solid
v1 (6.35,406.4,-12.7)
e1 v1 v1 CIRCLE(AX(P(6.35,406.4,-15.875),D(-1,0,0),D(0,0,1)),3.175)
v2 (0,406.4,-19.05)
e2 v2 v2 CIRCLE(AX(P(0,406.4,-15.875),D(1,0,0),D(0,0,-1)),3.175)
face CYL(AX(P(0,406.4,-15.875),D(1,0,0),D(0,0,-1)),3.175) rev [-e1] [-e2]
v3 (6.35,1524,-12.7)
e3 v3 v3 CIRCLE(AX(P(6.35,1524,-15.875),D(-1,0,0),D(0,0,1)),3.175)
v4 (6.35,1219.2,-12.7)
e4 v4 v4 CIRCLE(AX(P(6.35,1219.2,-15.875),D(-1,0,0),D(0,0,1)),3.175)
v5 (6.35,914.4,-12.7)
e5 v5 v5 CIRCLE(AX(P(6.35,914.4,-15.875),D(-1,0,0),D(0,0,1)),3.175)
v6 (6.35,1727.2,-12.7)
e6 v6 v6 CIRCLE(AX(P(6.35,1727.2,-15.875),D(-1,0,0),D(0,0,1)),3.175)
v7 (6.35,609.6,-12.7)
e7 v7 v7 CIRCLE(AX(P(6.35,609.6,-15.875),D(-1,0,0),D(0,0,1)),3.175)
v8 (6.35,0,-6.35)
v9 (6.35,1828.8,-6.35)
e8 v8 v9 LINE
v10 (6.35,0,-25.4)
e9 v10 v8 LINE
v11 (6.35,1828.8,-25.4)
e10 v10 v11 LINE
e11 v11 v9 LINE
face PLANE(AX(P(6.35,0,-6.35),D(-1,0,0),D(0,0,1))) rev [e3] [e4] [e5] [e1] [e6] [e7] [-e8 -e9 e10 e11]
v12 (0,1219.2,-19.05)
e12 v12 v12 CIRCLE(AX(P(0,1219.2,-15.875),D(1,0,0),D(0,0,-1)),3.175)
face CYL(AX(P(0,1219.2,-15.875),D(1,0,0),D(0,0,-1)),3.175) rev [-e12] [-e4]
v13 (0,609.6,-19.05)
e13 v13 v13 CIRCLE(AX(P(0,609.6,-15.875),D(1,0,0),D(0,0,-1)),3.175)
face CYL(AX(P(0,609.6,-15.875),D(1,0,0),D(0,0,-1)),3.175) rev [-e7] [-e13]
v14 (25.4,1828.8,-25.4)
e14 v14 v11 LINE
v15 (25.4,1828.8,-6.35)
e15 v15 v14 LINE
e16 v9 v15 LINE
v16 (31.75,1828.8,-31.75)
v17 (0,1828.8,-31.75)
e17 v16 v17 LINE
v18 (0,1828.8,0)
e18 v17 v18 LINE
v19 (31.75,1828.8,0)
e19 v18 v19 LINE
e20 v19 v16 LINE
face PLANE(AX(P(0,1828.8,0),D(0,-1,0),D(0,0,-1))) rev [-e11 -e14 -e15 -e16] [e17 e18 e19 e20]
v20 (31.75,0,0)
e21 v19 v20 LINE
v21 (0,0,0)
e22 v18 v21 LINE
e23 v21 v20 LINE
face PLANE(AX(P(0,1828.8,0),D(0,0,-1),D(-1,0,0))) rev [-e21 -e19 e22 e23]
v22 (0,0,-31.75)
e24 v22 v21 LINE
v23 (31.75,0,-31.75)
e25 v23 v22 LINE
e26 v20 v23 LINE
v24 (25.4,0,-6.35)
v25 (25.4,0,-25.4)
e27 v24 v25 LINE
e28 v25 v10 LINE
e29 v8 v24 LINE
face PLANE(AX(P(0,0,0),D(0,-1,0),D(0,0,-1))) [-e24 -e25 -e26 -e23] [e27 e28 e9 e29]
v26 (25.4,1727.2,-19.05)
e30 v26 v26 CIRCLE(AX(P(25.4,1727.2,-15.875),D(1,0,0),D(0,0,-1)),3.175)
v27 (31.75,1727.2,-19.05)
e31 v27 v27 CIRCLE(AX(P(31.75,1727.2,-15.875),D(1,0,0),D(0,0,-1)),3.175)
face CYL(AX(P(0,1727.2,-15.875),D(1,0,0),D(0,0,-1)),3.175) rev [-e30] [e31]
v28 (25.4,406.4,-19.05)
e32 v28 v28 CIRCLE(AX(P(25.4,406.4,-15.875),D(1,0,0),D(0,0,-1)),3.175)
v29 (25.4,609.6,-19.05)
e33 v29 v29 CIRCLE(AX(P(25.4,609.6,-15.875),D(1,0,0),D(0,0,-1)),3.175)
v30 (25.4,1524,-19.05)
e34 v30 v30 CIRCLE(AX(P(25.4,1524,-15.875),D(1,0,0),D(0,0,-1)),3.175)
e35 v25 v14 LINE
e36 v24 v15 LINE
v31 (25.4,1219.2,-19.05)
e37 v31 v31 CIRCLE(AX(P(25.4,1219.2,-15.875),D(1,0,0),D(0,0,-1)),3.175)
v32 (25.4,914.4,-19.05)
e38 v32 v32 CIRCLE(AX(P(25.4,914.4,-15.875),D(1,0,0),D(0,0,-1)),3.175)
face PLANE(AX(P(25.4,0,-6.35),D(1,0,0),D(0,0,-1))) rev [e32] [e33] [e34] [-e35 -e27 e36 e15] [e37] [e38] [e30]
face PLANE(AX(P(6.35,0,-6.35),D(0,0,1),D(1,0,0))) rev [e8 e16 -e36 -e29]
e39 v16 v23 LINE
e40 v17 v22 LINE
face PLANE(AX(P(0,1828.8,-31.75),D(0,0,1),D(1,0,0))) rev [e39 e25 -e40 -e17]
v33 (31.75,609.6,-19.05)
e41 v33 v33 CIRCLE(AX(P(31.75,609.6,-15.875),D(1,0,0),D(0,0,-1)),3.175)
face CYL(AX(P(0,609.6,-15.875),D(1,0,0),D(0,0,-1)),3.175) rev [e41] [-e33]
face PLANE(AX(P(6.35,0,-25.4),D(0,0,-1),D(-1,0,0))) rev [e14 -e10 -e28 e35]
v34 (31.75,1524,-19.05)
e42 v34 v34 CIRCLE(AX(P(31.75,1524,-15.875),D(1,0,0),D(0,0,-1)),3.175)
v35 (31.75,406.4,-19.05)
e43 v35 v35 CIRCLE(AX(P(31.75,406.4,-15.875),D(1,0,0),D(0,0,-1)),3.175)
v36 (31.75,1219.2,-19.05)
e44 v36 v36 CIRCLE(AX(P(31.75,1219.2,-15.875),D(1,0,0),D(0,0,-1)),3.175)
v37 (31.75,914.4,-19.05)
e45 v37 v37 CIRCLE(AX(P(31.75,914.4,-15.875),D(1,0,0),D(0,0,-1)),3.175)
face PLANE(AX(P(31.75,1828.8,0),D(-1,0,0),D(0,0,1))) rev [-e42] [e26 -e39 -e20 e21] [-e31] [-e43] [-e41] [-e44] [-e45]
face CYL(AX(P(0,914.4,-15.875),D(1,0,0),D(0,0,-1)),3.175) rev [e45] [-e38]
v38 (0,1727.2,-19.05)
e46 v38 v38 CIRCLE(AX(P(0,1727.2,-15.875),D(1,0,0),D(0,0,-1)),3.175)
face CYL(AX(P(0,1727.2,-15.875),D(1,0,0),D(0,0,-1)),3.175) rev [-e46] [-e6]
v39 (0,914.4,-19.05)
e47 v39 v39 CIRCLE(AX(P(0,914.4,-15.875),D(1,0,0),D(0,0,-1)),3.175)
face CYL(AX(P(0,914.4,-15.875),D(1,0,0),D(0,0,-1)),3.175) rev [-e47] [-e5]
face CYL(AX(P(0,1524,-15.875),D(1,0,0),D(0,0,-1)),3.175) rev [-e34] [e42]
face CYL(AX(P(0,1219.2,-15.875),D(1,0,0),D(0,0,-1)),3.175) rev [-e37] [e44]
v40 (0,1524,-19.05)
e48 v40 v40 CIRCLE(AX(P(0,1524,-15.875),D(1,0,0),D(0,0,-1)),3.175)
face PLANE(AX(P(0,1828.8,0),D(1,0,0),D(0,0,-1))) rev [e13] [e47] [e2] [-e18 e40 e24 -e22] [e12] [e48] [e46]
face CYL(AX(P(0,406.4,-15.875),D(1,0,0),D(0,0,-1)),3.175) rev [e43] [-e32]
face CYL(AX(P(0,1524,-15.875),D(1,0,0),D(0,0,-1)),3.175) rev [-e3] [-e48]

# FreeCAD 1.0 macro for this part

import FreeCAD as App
import Part
import Sketcher
from FreeCAD import Vector
Q = App.Units.Quantity


def add_polygon(sketch, points):
    """Adds a closed chain of lines whose ends are joined by coincident constraints."""
    first, n = sketch.GeometryCount, len(points)
    for a, b in zip(points, points[1:] + points[:1]):
        sketch.addGeometry(Part.LineSegment(App.Vector(*a, 0), App.Vector(*b, 0)), False)
    for i in range(n):
        sketch.addConstraint(Sketcher.Constraint("Coincident", first + i, 2, first + (i + 1) % n, 1))

doc = App.newDocument("Part")
body = doc.addObject("PartDesign::Body", "Body")

# Sketch on XZ plane
sketch1 = body.newObject("Sketcher::SketchObject", "Sketch")
sketch1.AttachmentSupport = (doc.getObject("XZ_Plane"), [""])
sketch1.MapMode = "FlatFace"
add_polygon(sketch1, [(0, -32), (0, 0), (32, 0), (32, -32)])  # lines 0-3
sketch1.addConstraint([
    Sketcher.Constraint("Vertical", 0),
    Sketcher.Constraint("Horizontal", 1),
    Sketcher.Constraint("Vertical", 2),
    Sketcher.Constraint("Horizontal", 3),
    Sketcher.Constraint("Coincident", 0, 2, -1, 1),
    Sketcher.Constraint("Equal", 3, 0),
    Sketcher.Constraint("DistanceX", 1, 1, 1, 2, Q("1.25 in")),
])
pad1 = body.newObject("PartDesign::Pad", "Pad")
pad1.Profile = sketch1
pad1.Length = Q("72 in")
pad1.Reversed = True

# Sketch on XZ plane
sketch2 = body.newObject("Sketcher::SketchObject", "Sketch001")
sketch2.AttachmentSupport = (doc.getObject("XZ_Plane"), [""])
sketch2.MapMode = "FlatFace"
sketch2.AttachmentOffset = App.Placement(Vector(0, 0, -72 * 25.4), App.Rotation())
add_polygon(sketch2, [(6, -25), (6, -6), (25, -6), (25, -25)])  # lines 0-3
sketch2.addConstraint([
    Sketcher.Constraint("Vertical", 0),
    Sketcher.Constraint("Horizontal", 1),
    Sketcher.Constraint("Vertical", 2),
    Sketcher.Constraint("Horizontal", 3),
    Sketcher.Constraint("Equal", 3, 0),
    Sketcher.Constraint("DistanceX", -1, 1, 1, 2, Q("1 in")),
    Sketcher.Constraint("DistanceY", 2, 2, -1, 1, Q("1 in")),
    Sketcher.Constraint("DistanceX", 1, 1, 1, 2, Q("0.75 in")),
])
pocket1 = body.newObject("PartDesign::Pocket", "Pocket")
pocket1.Profile = sketch2
pocket1.Type = "ThroughAll"
pocket1.Reversed = True

# Sketch on YZ plane
sketch3 = body.newObject("Sketcher::SketchObject", "Sketch002")
sketch3.AttachmentSupport = (doc.getObject("YZ_Plane"), [""])
sketch3.MapMode = "FlatFace"
sketch3.AttachmentOffset = App.Placement(Vector(0, 0, 1.25 * 25.4), App.Rotation())
sketch3.addGeometry(Part.Circle(Vector(1727.2, -15.9, 0), Vector(0, 0, 1), 3.2), False)
sketch3.addConstraint([
    Sketcher.Constraint("Diameter", 0, Q("0.25 in")),
    Sketcher.Constraint("DistanceX", -1, 1, 0, 3, Q("68 in")),
    Sketcher.Constraint("DistanceY", 0, 3, -1, 1, Q("0.625 in")),
])
pocket2 = body.newObject("PartDesign::Pocket", "Pocket001")
pocket2.Profile = sketch3
pocket2.Type = "ThroughAll"

# Sketch on YZ plane
sketch4 = body.newObject("Sketcher::SketchObject", "Sketch003")
sketch4.AttachmentSupport = (doc.getObject("YZ_Plane"), [""])
sketch4.MapMode = "FlatFace"
sketch4.AttachmentOffset = App.Placement(Vector(0, 0, 1.25 * 25.4), App.Rotation())
sketch4.addGeometry([
    Part.Circle(Vector(1524, -15.9, 0), Vector(0, 0, 1), 3.2),  # 0
    Part.Circle(Vector(1219.2, -15.9, 0), Vector(0, 0, 1), 3.2),  # 1
    Part.Circle(Vector(914.4, -15.9, 0), Vector(0, 0, 1), 3.2),  # 2
    Part.Circle(Vector(609.6, -15.9, 0), Vector(0, 0, 1), 3.2),  # 3
    Part.Circle(Vector(406.4, -15.9, 0), Vector(0, 0, 1), 3.2),  # 4
], False)
sketch4.addConstraint([
    Sketcher.Constraint("Equal", 0, 1),
    Sketcher.Constraint("Equal", 1, 2),
    Sketcher.Constraint("Equal", 2, 3),
    Sketcher.Constraint("Equal", 3, 4),
    Sketcher.Constraint("Horizontal", 0, 3, 1, 3),
    Sketcher.Constraint("Horizontal", 1, 3, 2, 3),
    Sketcher.Constraint("Horizontal", 2, 3, 3, 3),
    Sketcher.Constraint("Horizontal", 3, 3, 4, 3),
    Sketcher.Constraint("Diameter", 0, Q("0.25 in")),
    Sketcher.Constraint("DistanceX", -1, 1, 0, 3, Q("60 in")),
    Sketcher.Constraint("DistanceX", -1, 1, 1, 3, Q("48 in")),
    Sketcher.Constraint("DistanceX", -1, 1, 2, 3, Q("36 in")),
    Sketcher.Constraint("DistanceX", -1, 1, 3, 3, Q("24 in")),
    Sketcher.Constraint("DistanceX", -1, 1, 4, 3, Q("16 in")),
    Sketcher.Constraint("DistanceY", 0, 3, -1, 1, Q("0.625 in")),
])
pocket3 = body.newObject("PartDesign::Pocket", "Pocket002")
pocket3.Profile = sketch4
pocket3.Type = "ThroughAll"

doc.recompute()
